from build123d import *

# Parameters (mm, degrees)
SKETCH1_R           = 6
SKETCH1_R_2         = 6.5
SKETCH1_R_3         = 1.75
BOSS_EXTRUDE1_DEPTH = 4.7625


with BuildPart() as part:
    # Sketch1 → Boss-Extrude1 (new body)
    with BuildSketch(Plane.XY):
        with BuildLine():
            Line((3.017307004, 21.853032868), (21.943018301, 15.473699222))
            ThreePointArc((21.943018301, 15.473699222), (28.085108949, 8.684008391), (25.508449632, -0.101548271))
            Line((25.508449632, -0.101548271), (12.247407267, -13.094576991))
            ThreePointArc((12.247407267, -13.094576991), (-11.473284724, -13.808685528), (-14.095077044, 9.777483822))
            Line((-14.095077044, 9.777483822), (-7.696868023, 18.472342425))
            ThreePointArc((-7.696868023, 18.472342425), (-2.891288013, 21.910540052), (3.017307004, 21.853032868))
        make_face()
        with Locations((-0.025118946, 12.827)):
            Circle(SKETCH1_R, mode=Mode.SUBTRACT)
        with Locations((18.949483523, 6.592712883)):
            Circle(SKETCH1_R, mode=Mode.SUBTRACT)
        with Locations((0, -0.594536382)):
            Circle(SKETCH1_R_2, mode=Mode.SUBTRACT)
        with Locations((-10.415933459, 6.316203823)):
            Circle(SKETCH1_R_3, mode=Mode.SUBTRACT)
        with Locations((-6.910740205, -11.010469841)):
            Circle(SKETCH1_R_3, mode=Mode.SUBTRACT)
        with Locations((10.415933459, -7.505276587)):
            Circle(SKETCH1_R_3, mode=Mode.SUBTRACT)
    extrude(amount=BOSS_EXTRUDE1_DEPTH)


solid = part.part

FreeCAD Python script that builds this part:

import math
import FreeCAD as App
import Part
import Sketcher
from FreeCAD import Vector

doc = App.newDocument("Part")
body = doc.addObject("PartDesign::Body", "Body")

# Sketch on XY plane
sketch1 = body.newObject("Sketcher::SketchObject", "Sketch")
sketch1.AttachmentSupport = (doc.getObject("XY_Plane"), [""])
sketch1.MapMode = "FlatFace"
sketch1.addGeometry(Part.LineSegment(Vector(21.943018, 15.473699, 0), Vector(3.017307, 21.853033, 0)), False)
sketch1.addGeometry(Part.ArcOfCircle(Part.Circle(Vector(-0.025119, 12.827, 0), Vector(0, 0, 1), 9.525), math.radians(71.372462), math.radians(143.652091)), False)
sketch1.addGeometry(Part.LineSegment(Vector(-7.696868, 18.472342, 0), Vector(-14.095077, 9.777484, 0)), False)
sketch1.addGeometry(Part.ArcOfCircle(Part.Circle(Vector(0, -0.594536, 0), Vector(0, 0, 1), 17.5), math.radians(143.652091), math.radians(314.415119)), False)
sketch1.addGeometry(Part.LineSegment(Vector(12.247407, -13.094577, 0), Vector(25.50845, -0.101548, 0)), False)
sketch1.addGeometry(Part.ArcOfCircle(Part.Circle(Vector(18.949484, 6.592713, 0), Vector(0, 0, 1), 9.371935), math.radians(-45.584881), math.radians(71.372462)), False)
sketch1.addGeometry(Part.Circle(Vector(10.415933, -7.505277, 0), Vector(0, 0, 1), 1.75), False)
sketch1.addGeometry(Part.Circle(Vector(-6.91074, -11.01047, 0), Vector(0, 0, 1), 1.75), False)
sketch1.addGeometry(Part.Circle(Vector(0, -0.594536, 0), Vector(0, 0, 1), 6.5), False)
sketch1.addGeometry(Part.Circle(Vector(18.949484, 6.592713, 0), Vector(0, 0, 1), 6), False)
sketch1.addGeometry(Part.Circle(Vector(-10.415933, 6.316204, 0), Vector(0, 0, 1), 1.75), False)
sketch1.addGeometry(Part.Circle(Vector(-0.025119, 12.827, 0), Vector(0, 0, 1), 6), False)
sketch1.addConstraint(Sketcher.Constraint("Tangent", 0, 2, 1, 1))
sketch1.addConstraint(Sketcher.Constraint("Tangent", 1, 2, 2, 1))
sketch1.addConstraint(Sketcher.Constraint("Tangent", 2, 2, 3, 1))
sketch1.addConstraint(Sketcher.Constraint("Tangent", 3, 2, 4, 1))
sketch1.addConstraint(Sketcher.Constraint("Tangent", 4, 2, 5, 1))
sketch1.addConstraint(Sketcher.Constraint("Tangent", 5, 2, 0, 1))
sketch1.addConstraint(Sketcher.Constraint("Coincident", 8, 3, 3, 3))
sketch1.addConstraint(Sketcher.Constraint("Coincident", 9, 3, 5, 3))
sketch1.addConstraint(Sketcher.Constraint("Coincident", 11, 3, 1, 3))
sketch1.addConstraint(Sketcher.Constraint("Equal", 6, 7))
sketch1.addConstraint(Sketcher.Constraint("Equal", 7, 10))
sketch1.addConstraint(Sketcher.Constraint("Equal", 9, 11))
sketch1.addConstraint(Sketcher.Constraint("PointOnObject", 3, 3, -2))
sketch1.addConstraint(Sketcher.Constraint("Diameter", 8, 13.0))
sketch1.addConstraint(Sketcher.Constraint("Diameter", 9, 12.0))
sketch1.addConstraint(Sketcher.Constraint("Diameter", 6, 3.5))
sketch1.addConstraint(Sketcher.Constraint("Radius", 3, 17.5))
sketch1.addConstraint(Sketcher.Constraint("Radius", 1, 9.525))
sketch1.addConstraint(Sketcher.Constraint("DistanceY", -1, 1, 1, 3, 12.827))
sketch1.addConstraint(Sketcher.Constraint("Radius", 5, 9.371935))
sketch1.addConstraint(Sketcher.Constraint("Distance", 4, 18.565399))
sketch1.addConstraint(Sketcher.Constraint("DistanceY", -1, 1, 5, 2, 15.473699))
sketch1.addConstraint(Sketcher.Constraint("DistanceY", 3, 2, 6, 3, 5.5893))
sketch1.addConstraint(Sketcher.Constraint("Distance", 0, 19.971941))
sketch1.addConstraint(Sketcher.Constraint("Distance", 2, 10.79526))
sketch1.addConstraint(Sketcher.Constraint("DistanceX", 7, 3, -1, 1, 6.91074))
sketch1.addConstraint(Sketcher.Constraint("DistanceY", 7, 3, -1, 1, 11.01047))
sketch1.addConstraint(Sketcher.Constraint("DistanceX", 6, 3, 5, 3, 8.53355))
sketch1.addConstraint(Sketcher.Constraint("DistanceY", 8, 3, 10, 3, 6.91074))
sketch1.addConstraint(Sketcher.Constraint("DistanceX", 10, 3, 0, 2, 13.43324))
pad1 = body.newObject("PartDesign::Pad", "Pad")
pad1.Profile = sketch1
pad1.Length = 4.7625

doc.recompute()
